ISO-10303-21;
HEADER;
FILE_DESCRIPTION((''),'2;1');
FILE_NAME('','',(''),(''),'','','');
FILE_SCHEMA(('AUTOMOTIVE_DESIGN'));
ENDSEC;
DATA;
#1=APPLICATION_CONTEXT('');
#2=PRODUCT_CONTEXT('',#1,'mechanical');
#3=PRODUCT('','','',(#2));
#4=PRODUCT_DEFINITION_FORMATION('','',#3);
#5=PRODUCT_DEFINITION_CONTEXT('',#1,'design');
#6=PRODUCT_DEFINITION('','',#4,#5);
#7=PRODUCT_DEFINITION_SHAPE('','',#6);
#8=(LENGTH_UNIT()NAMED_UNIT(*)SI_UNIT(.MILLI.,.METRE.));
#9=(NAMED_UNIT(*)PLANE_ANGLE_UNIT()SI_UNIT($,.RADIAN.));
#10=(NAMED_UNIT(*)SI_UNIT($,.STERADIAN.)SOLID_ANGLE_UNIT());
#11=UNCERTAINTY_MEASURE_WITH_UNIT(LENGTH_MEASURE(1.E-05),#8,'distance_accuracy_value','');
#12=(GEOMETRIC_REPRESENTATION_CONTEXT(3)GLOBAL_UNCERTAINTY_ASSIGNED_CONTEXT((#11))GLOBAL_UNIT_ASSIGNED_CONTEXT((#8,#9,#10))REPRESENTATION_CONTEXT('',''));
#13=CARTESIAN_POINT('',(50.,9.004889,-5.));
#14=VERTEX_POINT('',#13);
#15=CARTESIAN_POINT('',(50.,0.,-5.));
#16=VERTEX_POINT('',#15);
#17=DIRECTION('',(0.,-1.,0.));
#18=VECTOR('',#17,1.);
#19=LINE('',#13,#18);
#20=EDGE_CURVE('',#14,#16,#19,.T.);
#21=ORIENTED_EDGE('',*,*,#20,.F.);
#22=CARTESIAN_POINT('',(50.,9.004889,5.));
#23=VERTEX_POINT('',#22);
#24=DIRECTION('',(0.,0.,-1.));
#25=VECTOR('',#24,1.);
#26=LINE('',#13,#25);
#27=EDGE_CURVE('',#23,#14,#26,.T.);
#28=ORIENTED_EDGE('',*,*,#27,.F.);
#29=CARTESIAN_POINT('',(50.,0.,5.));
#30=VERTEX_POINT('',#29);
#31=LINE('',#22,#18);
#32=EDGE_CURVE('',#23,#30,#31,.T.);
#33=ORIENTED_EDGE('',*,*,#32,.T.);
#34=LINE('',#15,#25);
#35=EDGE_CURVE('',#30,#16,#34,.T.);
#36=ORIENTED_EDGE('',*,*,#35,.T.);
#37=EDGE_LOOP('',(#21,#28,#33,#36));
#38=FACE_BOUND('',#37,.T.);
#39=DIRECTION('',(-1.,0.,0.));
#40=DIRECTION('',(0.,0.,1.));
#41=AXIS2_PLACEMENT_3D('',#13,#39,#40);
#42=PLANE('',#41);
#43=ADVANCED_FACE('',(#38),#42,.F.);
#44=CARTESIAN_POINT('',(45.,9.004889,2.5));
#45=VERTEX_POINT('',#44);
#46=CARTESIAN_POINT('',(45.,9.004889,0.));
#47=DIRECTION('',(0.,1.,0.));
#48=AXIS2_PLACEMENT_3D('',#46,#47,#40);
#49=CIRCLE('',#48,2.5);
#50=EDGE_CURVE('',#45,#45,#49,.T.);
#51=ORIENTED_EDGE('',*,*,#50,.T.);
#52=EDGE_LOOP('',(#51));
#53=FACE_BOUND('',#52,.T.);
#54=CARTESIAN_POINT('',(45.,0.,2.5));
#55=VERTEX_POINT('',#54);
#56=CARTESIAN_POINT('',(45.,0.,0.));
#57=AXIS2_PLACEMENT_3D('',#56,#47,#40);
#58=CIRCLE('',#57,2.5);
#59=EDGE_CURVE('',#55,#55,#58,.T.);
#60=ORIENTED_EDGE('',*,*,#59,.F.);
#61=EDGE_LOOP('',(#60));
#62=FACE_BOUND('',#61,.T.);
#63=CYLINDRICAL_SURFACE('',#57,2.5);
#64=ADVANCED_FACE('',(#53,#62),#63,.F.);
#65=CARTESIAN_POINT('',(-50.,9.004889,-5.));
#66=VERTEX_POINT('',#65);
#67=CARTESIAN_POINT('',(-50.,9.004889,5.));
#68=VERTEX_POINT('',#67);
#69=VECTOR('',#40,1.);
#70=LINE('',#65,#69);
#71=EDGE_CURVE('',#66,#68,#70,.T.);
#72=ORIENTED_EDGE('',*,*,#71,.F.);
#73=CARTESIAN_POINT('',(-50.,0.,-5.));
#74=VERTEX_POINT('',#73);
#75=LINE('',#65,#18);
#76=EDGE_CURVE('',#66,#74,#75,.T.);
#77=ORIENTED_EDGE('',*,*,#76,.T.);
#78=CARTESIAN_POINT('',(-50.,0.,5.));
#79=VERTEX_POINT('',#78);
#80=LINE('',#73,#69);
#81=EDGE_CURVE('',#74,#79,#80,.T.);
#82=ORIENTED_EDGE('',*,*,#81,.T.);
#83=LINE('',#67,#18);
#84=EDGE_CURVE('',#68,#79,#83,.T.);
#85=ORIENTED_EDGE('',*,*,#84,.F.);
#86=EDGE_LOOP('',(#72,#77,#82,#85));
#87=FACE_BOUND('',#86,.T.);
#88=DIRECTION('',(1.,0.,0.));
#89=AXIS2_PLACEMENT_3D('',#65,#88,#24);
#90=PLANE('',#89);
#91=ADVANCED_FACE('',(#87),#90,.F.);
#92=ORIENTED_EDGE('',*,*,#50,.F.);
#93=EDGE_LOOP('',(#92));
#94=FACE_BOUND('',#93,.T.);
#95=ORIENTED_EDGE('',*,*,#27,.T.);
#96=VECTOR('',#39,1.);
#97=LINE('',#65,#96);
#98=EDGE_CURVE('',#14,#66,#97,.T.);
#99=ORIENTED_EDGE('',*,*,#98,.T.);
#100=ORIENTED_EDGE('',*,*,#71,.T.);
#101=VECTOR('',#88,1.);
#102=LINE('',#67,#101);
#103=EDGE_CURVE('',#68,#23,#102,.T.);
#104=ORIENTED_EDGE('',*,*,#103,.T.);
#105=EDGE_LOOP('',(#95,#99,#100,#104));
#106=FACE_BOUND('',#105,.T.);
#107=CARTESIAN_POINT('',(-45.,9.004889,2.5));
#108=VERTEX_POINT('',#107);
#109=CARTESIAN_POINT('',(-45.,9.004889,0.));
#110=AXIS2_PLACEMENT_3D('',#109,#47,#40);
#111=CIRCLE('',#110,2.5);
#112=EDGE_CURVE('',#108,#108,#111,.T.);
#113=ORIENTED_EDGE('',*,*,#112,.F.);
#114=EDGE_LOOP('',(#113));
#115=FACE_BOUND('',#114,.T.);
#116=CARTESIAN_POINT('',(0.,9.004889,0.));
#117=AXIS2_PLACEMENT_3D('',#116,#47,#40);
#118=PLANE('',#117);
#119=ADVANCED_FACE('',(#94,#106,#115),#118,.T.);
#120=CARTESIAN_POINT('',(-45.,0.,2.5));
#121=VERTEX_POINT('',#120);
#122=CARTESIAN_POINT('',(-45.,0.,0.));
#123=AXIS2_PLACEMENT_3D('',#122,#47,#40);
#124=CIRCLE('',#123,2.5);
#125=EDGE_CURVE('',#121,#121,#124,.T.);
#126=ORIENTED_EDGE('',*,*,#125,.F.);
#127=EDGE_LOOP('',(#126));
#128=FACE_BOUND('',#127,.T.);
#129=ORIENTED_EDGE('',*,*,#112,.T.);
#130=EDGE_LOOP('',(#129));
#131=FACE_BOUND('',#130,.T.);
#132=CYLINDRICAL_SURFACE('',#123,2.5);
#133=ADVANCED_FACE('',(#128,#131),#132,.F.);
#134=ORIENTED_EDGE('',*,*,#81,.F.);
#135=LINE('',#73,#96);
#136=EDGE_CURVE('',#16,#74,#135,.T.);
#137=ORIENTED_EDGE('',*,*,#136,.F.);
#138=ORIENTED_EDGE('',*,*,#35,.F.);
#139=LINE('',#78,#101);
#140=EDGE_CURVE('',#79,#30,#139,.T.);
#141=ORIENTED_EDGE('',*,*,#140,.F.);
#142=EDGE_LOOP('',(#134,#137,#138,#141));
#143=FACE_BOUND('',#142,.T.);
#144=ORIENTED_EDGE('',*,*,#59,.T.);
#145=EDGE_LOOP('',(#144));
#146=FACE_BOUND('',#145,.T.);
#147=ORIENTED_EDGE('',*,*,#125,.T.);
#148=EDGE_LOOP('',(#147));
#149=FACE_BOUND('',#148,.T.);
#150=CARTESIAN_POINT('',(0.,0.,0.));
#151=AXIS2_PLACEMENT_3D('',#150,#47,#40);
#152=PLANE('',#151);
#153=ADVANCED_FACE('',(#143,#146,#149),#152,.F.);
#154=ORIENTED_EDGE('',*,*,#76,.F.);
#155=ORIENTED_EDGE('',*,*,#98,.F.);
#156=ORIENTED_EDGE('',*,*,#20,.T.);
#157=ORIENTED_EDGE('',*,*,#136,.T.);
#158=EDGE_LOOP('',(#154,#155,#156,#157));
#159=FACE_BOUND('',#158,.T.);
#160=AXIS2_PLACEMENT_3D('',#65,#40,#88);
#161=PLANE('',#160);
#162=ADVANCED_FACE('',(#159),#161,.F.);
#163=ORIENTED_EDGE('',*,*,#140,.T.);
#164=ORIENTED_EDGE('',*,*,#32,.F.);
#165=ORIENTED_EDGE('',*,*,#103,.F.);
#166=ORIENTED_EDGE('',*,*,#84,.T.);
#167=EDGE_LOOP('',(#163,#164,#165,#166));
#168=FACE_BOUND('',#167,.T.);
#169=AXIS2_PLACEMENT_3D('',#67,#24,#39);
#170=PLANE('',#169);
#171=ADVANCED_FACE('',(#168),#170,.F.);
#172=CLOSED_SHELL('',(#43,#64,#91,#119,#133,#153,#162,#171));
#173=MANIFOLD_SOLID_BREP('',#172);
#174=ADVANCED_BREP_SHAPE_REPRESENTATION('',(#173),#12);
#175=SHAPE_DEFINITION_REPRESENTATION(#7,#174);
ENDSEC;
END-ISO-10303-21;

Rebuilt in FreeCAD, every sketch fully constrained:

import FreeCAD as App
import Part
import Sketcher
from FreeCAD import Vector


def add_polygon(sketch, points):
    """Adds a closed chain of lines whose ends are joined by coincident constraints."""
    first, n = sketch.GeometryCount, len(points)
    for a, b in zip(points, points[1:] + points[:1]):
        sketch.addGeometry(Part.LineSegment(App.Vector(*a, 0), App.Vector(*b, 0)), False)
    for i in range(n):
        sketch.addConstraint(Sketcher.Constraint("Coincident", first + i, 2, first + (i + 1) % n, 1))

doc = App.newDocument("Part")
params = doc.addObject("Spreadsheet::Sheet", "Params")
for row, (alias, value) in enumerate([
    ("sketch1_width", "100 mm"),
    ("sketch1_height", "10 mm"),
    ("pad1_length", "9.004889 mm"),
    ("sketch2_diameter", "5 mm"),
], start=1):
    params.set(f"A{row}", alias)
    params.set(f"B{row}", "=" + value)
    params.setAlias(f"B{row}", alias)

body = doc.addObject("PartDesign::Body", "Body")

sketch1 = body.newObject("Sketcher::SketchObject", "Sketch")
sketch1.AttachmentSupport = (doc.getObject("XZ_Plane"), [""])
sketch1.MapMode = "FlatFace"
add_polygon(sketch1, [(-50, -5), (-50, 5), (50, 5), (50, -5)])
sketch1.addConstraint(Sketcher.Constraint("Vertical", 0))
sketch1.addConstraint(Sketcher.Constraint("Horizontal", 1))
sketch1.addConstraint(Sketcher.Constraint("Vertical", 2))
sketch1.addConstraint(Sketcher.Constraint("Horizontal", 3))
sketch1.addConstraint(Sketcher.Constraint("Symmetric", 0, 2, 2, 2, -1, 1))
sketch1.addConstraint(Sketcher.Constraint("DistanceX", 1, 1, 1, 2, 100.0))
sketch1.addConstraint(Sketcher.Constraint("DistanceY", 0, 1, 0, 2, 10.0))
sketch1.setExpression("Constraints[9]", "Params.sketch1_width")
sketch1.setExpression("Constraints[10]", "Params.sketch1_height")
pad1 = body.newObject("PartDesign::Pad", "Pad")
pad1.Profile = sketch1
pad1.setExpression("Length", "Params.pad1_length")
pad1.Reversed = True

sketch2 = body.newObject("Sketcher::SketchObject", "Sketch001")
sketch2.AttachmentSupport = (doc.getObject("XZ_Plane"), [""])
sketch2.MapMode = "FlatFace"
sketch2.AttachmentOffset = App.Placement(Vector(0, 0, -9.004889), App.Rotation())
sketch2.addGeometry(Part.Circle(Vector(-45, 0, 0), Vector(0, 0, 1), 2.5), False)
sketch2.addGeometry(Part.Circle(Vector(45, 0, 0), Vector(0, 0, 1), 2.5), False)
sketch2.addConstraint(Sketcher.Constraint("Equal", 0, 1))
sketch2.addConstraint(Sketcher.Constraint("Symmetric", 0, 3, 1, 3, -1, 1))
sketch2.addConstraint(Sketcher.Constraint("PointOnObject", 0, 3, -1))
sketch2.addConstraint(Sketcher.Constraint("Diameter", 0, 5.0))
sketch2.addConstraint(Sketcher.Constraint("DistanceX", 0, 3, -1, 1, 45.0))
sketch2.setExpression("Constraints[3]", "Params.sketch2_diameter")
pocket1 = body.newObject("PartDesign::Pocket", "Pocket")
pocket1.Profile = sketch2
pocket1.Type = "ThroughAll"
pocket1.Reversed = True

doc.recompute()
